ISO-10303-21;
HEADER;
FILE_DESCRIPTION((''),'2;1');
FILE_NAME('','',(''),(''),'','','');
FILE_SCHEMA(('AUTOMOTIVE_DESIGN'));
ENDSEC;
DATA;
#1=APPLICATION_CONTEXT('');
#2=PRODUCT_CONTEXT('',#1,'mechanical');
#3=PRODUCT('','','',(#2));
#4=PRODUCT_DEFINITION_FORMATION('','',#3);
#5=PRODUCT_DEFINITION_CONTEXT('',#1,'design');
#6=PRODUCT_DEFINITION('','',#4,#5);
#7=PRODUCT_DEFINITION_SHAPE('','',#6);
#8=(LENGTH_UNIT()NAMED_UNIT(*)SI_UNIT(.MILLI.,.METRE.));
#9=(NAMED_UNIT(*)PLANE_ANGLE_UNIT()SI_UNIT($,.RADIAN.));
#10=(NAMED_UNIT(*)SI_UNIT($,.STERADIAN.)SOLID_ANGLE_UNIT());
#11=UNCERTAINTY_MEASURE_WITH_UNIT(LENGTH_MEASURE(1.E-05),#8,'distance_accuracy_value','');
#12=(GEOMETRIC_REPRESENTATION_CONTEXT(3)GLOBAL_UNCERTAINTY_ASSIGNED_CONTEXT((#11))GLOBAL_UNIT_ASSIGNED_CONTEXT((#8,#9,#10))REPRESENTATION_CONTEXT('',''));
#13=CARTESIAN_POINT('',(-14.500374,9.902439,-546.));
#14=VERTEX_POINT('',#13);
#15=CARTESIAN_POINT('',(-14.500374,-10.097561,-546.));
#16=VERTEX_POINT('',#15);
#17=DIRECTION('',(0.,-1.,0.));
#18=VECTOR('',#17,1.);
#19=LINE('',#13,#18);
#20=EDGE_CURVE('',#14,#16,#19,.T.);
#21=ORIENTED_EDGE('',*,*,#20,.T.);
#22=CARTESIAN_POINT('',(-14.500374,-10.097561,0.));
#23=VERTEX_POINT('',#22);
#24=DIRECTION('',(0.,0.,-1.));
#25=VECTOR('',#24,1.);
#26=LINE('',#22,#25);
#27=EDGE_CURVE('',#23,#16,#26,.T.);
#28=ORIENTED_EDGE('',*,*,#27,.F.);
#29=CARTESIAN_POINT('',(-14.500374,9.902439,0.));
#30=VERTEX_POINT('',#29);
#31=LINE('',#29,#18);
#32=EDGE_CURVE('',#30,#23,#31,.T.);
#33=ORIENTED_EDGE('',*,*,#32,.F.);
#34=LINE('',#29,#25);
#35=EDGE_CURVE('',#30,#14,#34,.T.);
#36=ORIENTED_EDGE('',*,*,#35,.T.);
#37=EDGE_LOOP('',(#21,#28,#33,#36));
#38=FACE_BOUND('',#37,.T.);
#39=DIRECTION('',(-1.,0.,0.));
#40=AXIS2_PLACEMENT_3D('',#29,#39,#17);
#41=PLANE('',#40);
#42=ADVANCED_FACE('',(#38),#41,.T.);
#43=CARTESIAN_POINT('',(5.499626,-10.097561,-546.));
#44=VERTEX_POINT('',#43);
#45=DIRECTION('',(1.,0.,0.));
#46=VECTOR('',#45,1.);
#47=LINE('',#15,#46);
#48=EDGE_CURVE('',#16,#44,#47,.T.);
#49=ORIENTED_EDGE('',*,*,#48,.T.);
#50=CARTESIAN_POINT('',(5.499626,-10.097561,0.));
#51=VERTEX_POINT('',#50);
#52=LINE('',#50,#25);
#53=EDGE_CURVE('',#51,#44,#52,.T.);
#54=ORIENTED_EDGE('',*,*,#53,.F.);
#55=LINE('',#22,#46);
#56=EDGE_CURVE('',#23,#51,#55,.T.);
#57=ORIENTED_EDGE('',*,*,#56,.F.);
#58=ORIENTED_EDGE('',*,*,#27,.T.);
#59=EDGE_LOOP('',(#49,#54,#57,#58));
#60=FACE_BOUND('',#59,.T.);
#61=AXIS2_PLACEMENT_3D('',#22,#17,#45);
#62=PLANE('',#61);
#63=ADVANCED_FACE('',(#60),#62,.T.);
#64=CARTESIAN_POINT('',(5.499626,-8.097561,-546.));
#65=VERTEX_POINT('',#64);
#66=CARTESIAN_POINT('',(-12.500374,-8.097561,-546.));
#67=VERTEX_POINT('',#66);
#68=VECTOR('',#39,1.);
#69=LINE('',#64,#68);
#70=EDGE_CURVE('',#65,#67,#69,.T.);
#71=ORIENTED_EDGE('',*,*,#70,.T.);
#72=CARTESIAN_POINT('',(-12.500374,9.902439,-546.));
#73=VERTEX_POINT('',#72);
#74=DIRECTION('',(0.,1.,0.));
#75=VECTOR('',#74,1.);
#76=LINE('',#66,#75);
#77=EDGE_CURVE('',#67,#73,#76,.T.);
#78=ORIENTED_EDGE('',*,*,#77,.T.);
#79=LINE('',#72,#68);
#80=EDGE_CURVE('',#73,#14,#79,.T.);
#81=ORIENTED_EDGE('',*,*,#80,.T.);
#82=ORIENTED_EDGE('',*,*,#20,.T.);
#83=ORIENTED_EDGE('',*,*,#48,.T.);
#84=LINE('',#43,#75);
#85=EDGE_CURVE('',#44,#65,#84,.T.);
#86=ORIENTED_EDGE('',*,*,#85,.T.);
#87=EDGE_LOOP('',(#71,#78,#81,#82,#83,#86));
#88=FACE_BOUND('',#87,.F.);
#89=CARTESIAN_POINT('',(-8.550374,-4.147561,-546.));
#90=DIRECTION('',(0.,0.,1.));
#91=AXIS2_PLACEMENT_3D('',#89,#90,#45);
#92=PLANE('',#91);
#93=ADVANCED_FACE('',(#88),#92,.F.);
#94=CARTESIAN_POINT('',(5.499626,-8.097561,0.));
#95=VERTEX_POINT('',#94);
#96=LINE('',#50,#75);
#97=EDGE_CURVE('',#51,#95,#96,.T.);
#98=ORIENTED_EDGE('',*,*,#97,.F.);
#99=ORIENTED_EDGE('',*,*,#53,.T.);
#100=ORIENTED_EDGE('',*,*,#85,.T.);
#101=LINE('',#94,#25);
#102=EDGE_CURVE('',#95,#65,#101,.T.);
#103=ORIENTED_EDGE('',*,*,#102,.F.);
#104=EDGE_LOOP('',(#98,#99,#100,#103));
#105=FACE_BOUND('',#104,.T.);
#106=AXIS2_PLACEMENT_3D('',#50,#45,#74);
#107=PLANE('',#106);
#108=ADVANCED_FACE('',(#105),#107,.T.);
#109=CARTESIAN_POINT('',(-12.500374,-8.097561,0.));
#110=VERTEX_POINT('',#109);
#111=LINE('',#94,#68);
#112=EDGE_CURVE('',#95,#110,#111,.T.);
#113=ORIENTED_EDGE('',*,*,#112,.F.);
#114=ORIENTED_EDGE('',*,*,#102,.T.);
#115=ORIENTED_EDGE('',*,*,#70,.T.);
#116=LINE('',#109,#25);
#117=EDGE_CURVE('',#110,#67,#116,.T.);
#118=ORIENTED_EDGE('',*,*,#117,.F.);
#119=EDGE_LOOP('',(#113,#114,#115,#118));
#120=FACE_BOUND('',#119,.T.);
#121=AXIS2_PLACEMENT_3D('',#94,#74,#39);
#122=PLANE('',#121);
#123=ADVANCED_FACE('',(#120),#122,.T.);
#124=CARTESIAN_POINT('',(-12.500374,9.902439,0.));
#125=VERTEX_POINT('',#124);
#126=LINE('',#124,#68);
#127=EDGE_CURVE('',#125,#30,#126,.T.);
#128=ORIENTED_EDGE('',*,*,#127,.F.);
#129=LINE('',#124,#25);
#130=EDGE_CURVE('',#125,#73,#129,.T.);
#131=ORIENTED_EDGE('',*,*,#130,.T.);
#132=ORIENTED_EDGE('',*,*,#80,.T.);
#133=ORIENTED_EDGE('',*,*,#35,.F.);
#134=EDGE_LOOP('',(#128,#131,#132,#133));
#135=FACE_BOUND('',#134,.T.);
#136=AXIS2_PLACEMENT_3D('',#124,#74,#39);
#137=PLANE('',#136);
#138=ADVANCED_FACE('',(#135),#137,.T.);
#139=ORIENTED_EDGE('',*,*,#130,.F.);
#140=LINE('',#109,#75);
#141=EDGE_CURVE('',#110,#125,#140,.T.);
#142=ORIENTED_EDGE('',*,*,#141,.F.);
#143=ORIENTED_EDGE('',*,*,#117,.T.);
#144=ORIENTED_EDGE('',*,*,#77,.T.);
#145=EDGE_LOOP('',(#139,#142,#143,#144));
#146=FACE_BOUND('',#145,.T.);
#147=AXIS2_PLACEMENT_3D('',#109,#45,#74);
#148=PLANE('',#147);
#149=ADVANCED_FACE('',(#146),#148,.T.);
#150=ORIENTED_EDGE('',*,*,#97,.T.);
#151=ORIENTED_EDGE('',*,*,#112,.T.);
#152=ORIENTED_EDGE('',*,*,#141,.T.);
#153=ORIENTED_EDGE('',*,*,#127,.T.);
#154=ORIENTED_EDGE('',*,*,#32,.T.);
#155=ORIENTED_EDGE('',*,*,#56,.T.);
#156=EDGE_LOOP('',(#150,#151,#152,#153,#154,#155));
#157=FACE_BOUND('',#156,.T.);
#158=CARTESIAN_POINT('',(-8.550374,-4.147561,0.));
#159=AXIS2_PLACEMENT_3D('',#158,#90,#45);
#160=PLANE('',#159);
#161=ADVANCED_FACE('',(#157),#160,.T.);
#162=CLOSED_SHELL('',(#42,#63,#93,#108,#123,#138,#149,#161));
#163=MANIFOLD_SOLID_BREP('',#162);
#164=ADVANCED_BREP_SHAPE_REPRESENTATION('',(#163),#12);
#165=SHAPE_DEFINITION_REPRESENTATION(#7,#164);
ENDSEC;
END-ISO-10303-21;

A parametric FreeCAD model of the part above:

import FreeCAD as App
import Part
import Sketcher
Q = App.Units.Quantity


def add_polygon(sketch, points):
    """Adds a closed chain of lines whose ends are joined by coincident constraints."""
    first, n = sketch.GeometryCount, len(points)
    for a, b in zip(points, points[1:] + points[:1]):
        sketch.addGeometry(Part.LineSegment(App.Vector(*a, 0), App.Vector(*b, 0)), False)
    for i in range(n):
        sketch.addConstraint(Sketcher.Constraint("Coincident", first + i, 2, first + (i + 1) % n, 1))

doc = App.newDocument("Part")
body = doc.addObject("PartDesign::Body", "Body")

# Sketch on XY plane
sketch1 = doc.addObject("Sketcher::SketchObject", "Sketch")
body.addObject(sketch1)
sketch1.AttachmentSupport = (doc.XY_Plane, [""])
sketch1.MapMode = "FlatFace"
add_polygon(sketch1, [(-12.500374, 9.902439), (-14.500374, 9.902439), (-14.500374, -10.097561), (5.499626, -10.097561), (5.499626, -8.097561), (-12.500374, -8.097561)])  # lines 0-5
sketch1.addConstraint(Sketcher.Constraint("Horizontal", 0))
sketch1.addConstraint(Sketcher.Constraint("Vertical", 1))
sketch1.addConstraint(Sketcher.Constraint("Horizontal", 2))
sketch1.addConstraint(Sketcher.Constraint("Vertical", 3))
sketch1.addConstraint(Sketcher.Constraint("Horizontal", 4))
sketch1.addConstraint(Sketcher.Constraint("Vertical", 5))
sketch1.addConstraint(Sketcher.Constraint("Equal", 2, 1))
sketch1.addConstraint(Sketcher.Constraint("Equal", 0, 3))
sketch1.addConstraint(Sketcher.Constraint("DistanceX", 0, 2, 0, 1, Q("2 mm")))
sketch1.addConstraint(Sketcher.Constraint("DistanceX", 2, 1, 2, 2, Q("20 mm")))
sketch1.addConstraint(Sketcher.Constraint("DistanceY", -1, 1, 0, 2, Q("9.902439 mm")))
sketch1.addConstraint(Sketcher.Constraint("DistanceX", 0, 2, -1, 1, Q("14.500374 mm")))
pad1 = doc.addObject("PartDesign::Pad", "Pad")
body.addObject(pad1)
pad1.Profile = sketch1
pad1.Length = 546
pad1.Reversed = True

doc.recompute()
